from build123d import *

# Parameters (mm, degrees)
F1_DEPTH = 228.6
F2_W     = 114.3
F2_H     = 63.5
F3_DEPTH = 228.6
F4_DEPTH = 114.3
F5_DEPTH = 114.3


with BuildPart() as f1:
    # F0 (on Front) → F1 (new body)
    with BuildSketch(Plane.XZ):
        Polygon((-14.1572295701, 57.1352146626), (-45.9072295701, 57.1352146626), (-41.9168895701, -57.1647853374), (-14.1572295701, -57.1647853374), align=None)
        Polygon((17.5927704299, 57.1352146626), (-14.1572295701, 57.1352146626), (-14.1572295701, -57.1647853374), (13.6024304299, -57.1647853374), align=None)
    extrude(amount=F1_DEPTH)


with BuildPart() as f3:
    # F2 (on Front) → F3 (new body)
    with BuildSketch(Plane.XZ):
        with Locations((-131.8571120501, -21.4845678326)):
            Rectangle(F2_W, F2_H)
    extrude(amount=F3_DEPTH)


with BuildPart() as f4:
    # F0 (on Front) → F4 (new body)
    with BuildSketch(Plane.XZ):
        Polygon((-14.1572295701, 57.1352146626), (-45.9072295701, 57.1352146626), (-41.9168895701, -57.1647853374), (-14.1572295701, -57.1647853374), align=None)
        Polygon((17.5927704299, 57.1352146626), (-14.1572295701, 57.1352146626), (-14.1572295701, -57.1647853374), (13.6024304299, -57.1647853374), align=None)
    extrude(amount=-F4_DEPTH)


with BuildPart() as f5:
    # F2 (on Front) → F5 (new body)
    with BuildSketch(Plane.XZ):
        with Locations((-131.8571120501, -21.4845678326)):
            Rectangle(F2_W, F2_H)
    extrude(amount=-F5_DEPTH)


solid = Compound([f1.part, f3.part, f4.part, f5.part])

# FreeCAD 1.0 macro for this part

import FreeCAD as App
import Part
import Sketcher
Q = App.Units.Quantity


def add_polygon(sketch, points):
    """Adds a closed chain of lines whose ends are joined by coincident constraints."""
    first, n = sketch.GeometryCount, len(points)
    for a, b in zip(points, points[1:] + points[:1]):
        sketch.addGeometry(Part.LineSegment(App.Vector(*a, 0), App.Vector(*b, 0)), False)
    for i in range(n):
        sketch.addConstraint(Sketcher.Constraint("Coincident", first + i, 2, first + (i + 1) % n, 1))

doc = App.newDocument("Part")
body = doc.addObject("PartDesign::Body", "Body")

# Sketch on XZ plane
sketch1 = doc.addObject("Sketcher::SketchObject", "Sketch")
body.addObject(sketch1)
sketch1.AttachmentSupport = (doc.XZ_Plane, [""])
sketch1.MapMode = "FlatFace"
add_polygon(sketch1, [(-45.90723, 57.135215), (-41.91689, -57.164785), (13.60243, -57.164785), (17.59277, 57.135215)])  # lines 0-3
sketch1.addConstraint([
    Sketcher.Constraint("Horizontal", 1),
    Sketcher.Constraint("Horizontal", 3),
    Sketcher.Constraint("Equal", 0, 2),
    Sketcher.Constraint("DistanceX", 3, 2, 3, 1, Q("2.5 in")),
    Sketcher.Constraint("DistanceY", 1, 2, 2, 2, Q("4.5 in")),
    Sketcher.Constraint("DistanceX", 1, 1, 1, 2, Q("2.1858 in")),
    Sketcher.Constraint("DistanceX", 0, 2, -1, 1, Q("41.91689 mm")),
    Sketcher.Constraint("DistanceY", 0, 2, -1, 1, Q("57.164785 mm")),
])
pad1 = doc.addObject("PartDesign::Pad", "Pad")
body.addObject(pad1)
pad1.Profile = sketch1
pad1.Length = Q("9 in")
body2 = doc.addObject("PartDesign::Body", "Body001")

# Sketch on XZ plane
sketch2 = doc.addObject("Sketcher::SketchObject", "Sketch001")
body2.addObject(sketch2)
sketch2.AttachmentSupport = (doc.getObject("XZ_Plane001"), [""])
sketch2.MapMode = "FlatFace"
add_polygon(sketch2, [(-189.007112, 10.265432), (-189.007112, -53.234568), (-74.707112, -53.234568), (-74.707112, 10.265432)])  # lines 0-3
sketch2.addConstraint([
    Sketcher.Constraint("Vertical", 0),
    Sketcher.Constraint("Horizontal", 1),
    Sketcher.Constraint("Vertical", 2),
    Sketcher.Constraint("Horizontal", 3),
    Sketcher.Constraint("DistanceX", 1, 1, 1, 2, Q("4.5 in")),
    Sketcher.Constraint("DistanceY", 0, 2, 0, 1, Q("2.5 in")),
    Sketcher.Constraint("DistanceX", 0, 2, -1, 1, Q("189.007112 mm")),
    Sketcher.Constraint("DistanceY", 0, 2, -1, 1, Q("53.234568 mm")),
])
pad2 = doc.addObject("PartDesign::Pad", "Pad001")
body2.addObject(pad2)
pad2.Profile = sketch2
pad2.Length = Q("9 in")
body3 = doc.addObject("PartDesign::Body", "Body002")

# Sketch on XZ plane
sketch3 = doc.addObject("Sketcher::SketchObject", "Sketch002")
body3.addObject(sketch3)
sketch3.AttachmentSupport = (doc.getObject("XZ_Plane002"), [""])
sketch3.MapMode = "FlatFace"
add_polygon(sketch3, [(-45.90723, 57.135215), (-41.91689, -57.164785), (13.60243, -57.164785), (17.59277, 57.135215)])  # lines 0-3
sketch3.addConstraint([
    Sketcher.Constraint("Horizontal", 1),
    Sketcher.Constraint("Horizontal", 3),
    Sketcher.Constraint("Equal", 0, 2),
    Sketcher.Constraint("DistanceX", 3, 2, 3, 1, Q("2.5 in")),
    Sketcher.Constraint("DistanceY", 1, 2, 2, 2, Q("4.5 in")),
    Sketcher.Constraint("DistanceX", 1, 1, 1, 2, Q("2.1858 in")),
    Sketcher.Constraint("DistanceX", 0, 2, -1, 1, Q("41.91689 mm")),
    Sketcher.Constraint("DistanceY", 0, 2, -1, 1, Q("57.164785 mm")),
])
pad3 = doc.addObject("PartDesign::Pad", "Pad002")
body3.addObject(pad3)
pad3.Profile = sketch3
pad3.Length = Q("4.5 in")
pad3.Reversed = True
body4 = doc.addObject("PartDesign::Body", "Body003")

# Sketch on XZ plane
sketch4 = doc.addObject("Sketcher::SketchObject", "Sketch003")
body4.addObject(sketch4)
sketch4.AttachmentSupport = (doc.getObject("XZ_Plane003"), [""])
sketch4.MapMode = "FlatFace"
add_polygon(sketch4, [(-189.007112, 10.265432), (-189.007112, -53.234568), (-74.707112, -53.234568), (-74.707112, 10.265432)])  # lines 0-3
sketch4.addConstraint([
    Sketcher.Constraint("Vertical", 0),
    Sketcher.Constraint("Horizontal", 1),
    Sketcher.Constraint("Vertical", 2),
    Sketcher.Constraint("Horizontal", 3),
    Sketcher.Constraint("DistanceX", 1, 1, 1, 2, Q("4.5 in")),
    Sketcher.Constraint("DistanceY", 0, 2, 0, 1, Q("2.5 in")),
    Sketcher.Constraint("DistanceX", 0, 2, -1, 1, Q("189.007112 mm")),
    Sketcher.Constraint("DistanceY", 0, 2, -1, 1, Q("53.234568 mm")),
])
pad4 = doc.addObject("PartDesign::Pad", "Pad003")
body4.addObject(pad4)
pad4.Profile = sketch4
pad4.Length = Q("4.5 in")
pad4.Reversed = True

doc.recompute()
